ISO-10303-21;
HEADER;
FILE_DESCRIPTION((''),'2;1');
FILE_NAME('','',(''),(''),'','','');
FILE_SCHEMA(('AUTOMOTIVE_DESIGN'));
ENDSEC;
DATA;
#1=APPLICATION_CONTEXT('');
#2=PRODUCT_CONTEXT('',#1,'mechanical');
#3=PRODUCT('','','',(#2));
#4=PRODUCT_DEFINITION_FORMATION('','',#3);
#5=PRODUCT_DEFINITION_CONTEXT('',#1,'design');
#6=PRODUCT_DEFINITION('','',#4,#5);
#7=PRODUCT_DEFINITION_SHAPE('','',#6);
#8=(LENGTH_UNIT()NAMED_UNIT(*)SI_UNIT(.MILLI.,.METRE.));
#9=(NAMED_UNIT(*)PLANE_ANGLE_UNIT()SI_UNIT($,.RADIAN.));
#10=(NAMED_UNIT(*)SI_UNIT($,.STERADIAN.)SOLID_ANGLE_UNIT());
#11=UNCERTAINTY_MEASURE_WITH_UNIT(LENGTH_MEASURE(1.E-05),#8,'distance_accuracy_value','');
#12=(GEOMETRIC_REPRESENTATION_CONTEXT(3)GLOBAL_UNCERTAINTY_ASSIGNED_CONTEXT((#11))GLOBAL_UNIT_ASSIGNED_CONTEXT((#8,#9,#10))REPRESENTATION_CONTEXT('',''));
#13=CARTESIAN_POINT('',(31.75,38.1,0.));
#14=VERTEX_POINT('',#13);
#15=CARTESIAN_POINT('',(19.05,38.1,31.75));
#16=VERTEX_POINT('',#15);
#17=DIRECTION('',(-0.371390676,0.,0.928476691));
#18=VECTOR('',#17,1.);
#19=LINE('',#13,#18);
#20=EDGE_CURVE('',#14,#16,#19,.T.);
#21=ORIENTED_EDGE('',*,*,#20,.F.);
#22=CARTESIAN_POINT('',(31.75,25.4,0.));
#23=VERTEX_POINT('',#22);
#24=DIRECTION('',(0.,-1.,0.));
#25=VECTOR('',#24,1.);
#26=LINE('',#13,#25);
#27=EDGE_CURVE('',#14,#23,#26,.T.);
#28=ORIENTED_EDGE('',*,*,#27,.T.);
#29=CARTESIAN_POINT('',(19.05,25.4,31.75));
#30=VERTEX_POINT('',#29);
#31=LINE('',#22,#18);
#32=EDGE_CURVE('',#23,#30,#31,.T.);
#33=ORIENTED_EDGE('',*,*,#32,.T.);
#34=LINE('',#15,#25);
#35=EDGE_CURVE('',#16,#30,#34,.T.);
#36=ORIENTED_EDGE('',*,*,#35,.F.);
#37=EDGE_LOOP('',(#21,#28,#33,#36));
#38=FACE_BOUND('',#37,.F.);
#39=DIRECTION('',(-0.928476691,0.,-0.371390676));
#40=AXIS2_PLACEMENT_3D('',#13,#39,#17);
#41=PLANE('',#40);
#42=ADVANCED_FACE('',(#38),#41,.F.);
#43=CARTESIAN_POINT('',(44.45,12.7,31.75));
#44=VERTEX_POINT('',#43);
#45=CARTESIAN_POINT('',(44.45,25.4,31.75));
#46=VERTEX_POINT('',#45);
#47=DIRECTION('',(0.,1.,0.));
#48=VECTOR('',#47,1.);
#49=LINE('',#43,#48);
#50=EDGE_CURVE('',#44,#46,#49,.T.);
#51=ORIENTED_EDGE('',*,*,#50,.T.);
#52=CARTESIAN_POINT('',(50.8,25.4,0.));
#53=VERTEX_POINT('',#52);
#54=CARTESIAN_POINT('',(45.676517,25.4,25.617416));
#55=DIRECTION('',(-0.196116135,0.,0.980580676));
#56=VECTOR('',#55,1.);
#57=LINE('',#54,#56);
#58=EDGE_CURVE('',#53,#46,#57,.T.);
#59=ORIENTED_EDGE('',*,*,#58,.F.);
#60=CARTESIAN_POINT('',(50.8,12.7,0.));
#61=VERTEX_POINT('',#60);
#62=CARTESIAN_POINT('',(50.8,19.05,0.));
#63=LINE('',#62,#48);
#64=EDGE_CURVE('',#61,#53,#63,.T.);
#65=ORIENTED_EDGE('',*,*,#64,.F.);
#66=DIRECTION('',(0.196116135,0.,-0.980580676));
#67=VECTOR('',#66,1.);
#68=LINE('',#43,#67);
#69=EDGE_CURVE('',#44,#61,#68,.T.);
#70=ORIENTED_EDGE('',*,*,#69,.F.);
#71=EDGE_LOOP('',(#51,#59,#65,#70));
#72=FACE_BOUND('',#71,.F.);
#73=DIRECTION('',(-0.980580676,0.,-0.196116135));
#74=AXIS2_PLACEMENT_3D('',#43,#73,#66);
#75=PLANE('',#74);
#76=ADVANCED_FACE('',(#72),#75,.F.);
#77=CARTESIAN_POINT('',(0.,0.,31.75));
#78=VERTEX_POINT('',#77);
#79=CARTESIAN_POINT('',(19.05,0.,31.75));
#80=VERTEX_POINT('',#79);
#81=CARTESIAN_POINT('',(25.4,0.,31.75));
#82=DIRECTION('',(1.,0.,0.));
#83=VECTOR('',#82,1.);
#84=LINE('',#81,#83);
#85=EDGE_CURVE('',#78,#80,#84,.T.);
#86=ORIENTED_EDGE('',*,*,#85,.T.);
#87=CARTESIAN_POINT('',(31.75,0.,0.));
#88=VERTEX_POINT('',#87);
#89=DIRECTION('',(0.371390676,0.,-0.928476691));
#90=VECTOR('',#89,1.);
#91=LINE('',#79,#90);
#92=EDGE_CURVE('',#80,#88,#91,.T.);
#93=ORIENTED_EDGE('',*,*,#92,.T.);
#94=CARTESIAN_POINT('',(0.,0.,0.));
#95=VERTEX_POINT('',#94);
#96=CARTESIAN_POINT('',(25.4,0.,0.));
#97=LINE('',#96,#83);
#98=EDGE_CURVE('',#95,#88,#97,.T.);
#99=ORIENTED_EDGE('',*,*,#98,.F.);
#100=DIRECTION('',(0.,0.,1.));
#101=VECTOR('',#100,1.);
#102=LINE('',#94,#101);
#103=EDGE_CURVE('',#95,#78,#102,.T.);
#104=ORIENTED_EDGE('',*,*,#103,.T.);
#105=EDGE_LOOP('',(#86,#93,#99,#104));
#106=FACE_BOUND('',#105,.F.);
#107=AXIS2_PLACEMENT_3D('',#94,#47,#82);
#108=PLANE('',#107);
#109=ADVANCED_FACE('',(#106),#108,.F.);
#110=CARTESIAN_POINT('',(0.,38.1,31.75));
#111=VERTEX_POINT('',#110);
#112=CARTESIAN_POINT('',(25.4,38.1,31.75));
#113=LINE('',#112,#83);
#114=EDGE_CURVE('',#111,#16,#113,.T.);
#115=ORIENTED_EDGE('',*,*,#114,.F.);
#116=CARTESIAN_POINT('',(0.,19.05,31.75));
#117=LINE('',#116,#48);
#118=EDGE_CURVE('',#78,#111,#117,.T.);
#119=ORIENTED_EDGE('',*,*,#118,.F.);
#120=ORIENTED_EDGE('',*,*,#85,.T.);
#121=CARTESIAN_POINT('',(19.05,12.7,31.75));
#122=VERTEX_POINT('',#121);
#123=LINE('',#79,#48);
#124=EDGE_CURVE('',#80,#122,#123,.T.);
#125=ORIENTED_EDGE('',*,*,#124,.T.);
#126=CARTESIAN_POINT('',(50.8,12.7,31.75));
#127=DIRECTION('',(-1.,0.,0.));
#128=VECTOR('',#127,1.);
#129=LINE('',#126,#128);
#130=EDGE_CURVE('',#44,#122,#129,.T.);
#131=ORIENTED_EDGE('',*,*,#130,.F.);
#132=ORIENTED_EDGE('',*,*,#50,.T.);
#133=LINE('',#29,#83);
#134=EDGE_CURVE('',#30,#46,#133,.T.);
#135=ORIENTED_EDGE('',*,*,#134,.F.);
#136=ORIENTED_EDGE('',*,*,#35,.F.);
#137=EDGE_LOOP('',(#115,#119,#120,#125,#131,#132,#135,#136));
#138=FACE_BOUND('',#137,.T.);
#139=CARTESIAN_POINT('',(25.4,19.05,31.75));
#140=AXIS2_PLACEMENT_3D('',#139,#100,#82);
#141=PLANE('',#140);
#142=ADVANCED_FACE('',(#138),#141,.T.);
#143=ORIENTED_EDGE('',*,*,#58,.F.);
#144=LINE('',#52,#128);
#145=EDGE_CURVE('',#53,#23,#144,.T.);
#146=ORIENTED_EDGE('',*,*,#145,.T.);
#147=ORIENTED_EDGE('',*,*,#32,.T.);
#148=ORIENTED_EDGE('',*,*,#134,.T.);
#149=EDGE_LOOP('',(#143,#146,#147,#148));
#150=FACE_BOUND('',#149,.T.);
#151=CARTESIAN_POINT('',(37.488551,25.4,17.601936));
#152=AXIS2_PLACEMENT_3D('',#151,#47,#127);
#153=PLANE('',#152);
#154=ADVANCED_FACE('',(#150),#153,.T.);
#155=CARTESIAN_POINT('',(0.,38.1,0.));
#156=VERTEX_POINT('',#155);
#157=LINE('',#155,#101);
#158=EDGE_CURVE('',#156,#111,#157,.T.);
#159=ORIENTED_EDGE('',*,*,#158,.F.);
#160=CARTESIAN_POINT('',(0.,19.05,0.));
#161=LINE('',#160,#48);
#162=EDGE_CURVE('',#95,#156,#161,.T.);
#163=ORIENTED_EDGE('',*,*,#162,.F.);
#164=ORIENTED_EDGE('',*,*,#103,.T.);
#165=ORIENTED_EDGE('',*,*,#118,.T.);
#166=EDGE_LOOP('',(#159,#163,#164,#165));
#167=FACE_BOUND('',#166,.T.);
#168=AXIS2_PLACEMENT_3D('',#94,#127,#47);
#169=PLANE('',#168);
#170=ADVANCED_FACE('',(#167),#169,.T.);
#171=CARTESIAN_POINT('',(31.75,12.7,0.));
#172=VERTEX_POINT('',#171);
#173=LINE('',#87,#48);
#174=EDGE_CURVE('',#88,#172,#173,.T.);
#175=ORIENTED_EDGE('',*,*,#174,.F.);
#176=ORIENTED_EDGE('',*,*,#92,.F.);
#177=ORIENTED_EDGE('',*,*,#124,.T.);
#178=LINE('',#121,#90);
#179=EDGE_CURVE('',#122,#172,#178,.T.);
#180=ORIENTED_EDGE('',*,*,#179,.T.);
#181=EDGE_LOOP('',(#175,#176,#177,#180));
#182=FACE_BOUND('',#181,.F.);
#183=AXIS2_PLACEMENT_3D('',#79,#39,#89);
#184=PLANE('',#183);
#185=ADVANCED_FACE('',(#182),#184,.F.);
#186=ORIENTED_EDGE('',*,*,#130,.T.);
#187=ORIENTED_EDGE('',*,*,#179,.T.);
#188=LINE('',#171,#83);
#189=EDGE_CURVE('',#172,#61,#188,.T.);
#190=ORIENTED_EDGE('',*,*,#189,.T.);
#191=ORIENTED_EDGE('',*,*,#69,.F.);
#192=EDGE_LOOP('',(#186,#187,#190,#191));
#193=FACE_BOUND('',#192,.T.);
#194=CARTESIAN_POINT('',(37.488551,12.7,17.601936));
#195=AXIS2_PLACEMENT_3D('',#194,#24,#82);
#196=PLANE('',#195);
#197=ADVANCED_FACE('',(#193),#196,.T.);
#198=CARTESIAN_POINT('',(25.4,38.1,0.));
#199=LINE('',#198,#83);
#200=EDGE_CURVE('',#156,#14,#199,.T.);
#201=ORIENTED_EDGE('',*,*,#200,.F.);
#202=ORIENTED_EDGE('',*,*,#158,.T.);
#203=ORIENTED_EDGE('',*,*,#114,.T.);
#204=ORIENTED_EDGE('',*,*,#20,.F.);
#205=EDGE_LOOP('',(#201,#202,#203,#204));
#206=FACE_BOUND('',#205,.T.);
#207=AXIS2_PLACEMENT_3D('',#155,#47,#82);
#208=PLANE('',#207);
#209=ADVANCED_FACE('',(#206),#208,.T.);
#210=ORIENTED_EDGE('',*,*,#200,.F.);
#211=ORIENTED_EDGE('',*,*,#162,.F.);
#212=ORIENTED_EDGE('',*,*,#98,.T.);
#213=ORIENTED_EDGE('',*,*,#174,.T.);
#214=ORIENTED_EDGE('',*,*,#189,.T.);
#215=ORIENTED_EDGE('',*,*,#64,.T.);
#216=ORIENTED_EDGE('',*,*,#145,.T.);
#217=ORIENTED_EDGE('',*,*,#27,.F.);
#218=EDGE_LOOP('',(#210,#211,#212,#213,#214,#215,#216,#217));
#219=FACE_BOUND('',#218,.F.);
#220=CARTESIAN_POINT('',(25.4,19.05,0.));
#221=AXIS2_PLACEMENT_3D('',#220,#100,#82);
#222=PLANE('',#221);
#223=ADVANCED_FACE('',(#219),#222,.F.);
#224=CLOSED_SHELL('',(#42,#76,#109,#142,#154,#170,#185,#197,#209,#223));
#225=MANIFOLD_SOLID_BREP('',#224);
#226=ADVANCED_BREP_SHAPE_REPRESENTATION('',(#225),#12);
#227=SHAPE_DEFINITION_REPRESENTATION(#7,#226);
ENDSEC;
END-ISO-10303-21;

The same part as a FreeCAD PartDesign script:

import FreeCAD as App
import Part
import Sketcher

V = App.Vector
Q = App.Units.Quantity


def add_polygon(sketch, points):
    """Adds a closed chain of lines whose ends are joined by coincident constraints."""
    first, n = sketch.GeometryCount, len(points)
    for a, b in zip(points, points[1:] + points[:1]):
        sketch.addGeometry(Part.LineSegment(App.Vector(*a, 0), App.Vector(*b, 0)), False)
    for i in range(n):
        sketch.addConstraint(Sketcher.Constraint("Coincident", first + i, 2, first + (i + 1) % n, 1))

doc = App.newDocument("Part")
body = doc.addObject("PartDesign::Body", "Body")

# Sketch on XY plane
sketch1 = body.newObject("Sketcher::SketchObject", "Sketch")
sketch1.AttachmentSupport = (doc.getObject("XY_Plane"), [""])
sketch1.MapMode = "FlatFace"
add_polygon(sketch1, [(0, 38.1), (0, 0), (50.8, 0), (50.8, 38.1)])  # lines 0-3
sketch1.addConstraint(Sketcher.Constraint("Vertical", 0))
sketch1.addConstraint(Sketcher.Constraint("Horizontal", 1))
sketch1.addConstraint(Sketcher.Constraint("Vertical", 2))
sketch1.addConstraint(Sketcher.Constraint("Horizontal", 3))
sketch1.addConstraint(Sketcher.Constraint("Coincident", 0, 2, -1, 1))
sketch1.addConstraint(Sketcher.Constraint("DistanceX", 1, 1, 1, 2, Q("2 in")))
sketch1.addConstraint(Sketcher.Constraint("DistanceY", 0, 2, 0, 1, Q("1.5 in")))
pad1 = body.newObject("PartDesign::Pad", "Pad")
pad1.Profile = sketch1
pad1.Length = Q("1.25 in")

# Sketch on XZ plane
sketch2 = body.newObject("Sketcher::SketchObject", "Sketch001")
sketch2.AttachmentSupport = (doc.getObject("XZ_Plane"), [""])
sketch2.MapMode = "FlatFace"
add_polygon(sketch2, [(19.05, 31.75), (31.75, 0), (50.8, 0), (50.8, 31.75)])  # lines 0-3
sketch2.addConstraint(Sketcher.Constraint("Horizontal", 1))
sketch2.addConstraint(Sketcher.Constraint("Vertical", 2))
sketch2.addConstraint(Sketcher.Constraint("Horizontal", 3))
sketch2.addConstraint(Sketcher.Constraint("PointOnObject", 0, 2, -1))
sketch2.addConstraint(Sketcher.Constraint("Equal", 3, 2))
sketch2.addConstraint(Sketcher.Constraint("DistanceX", -1, 1, 1, 2, Q("2 in")))
sketch2.addConstraint(Sketcher.Constraint("DistanceX", 1, 1, 1, 2, Q("0.75 in")))
sketch2.addConstraint(Sketcher.Constraint("DistanceX", 3, 2, 3, 1, Q("1.25 in")))
pocket1 = body.newObject("PartDesign::Pocket", "Pocket")
pocket1.Profile = sketch2
pocket1.Length = Q("0.5 in")

# Sketch on XZ plane
sketch3 = body.newObject("Sketcher::SketchObject", "Sketch002")
sketch3.AttachmentSupport = (doc.getObject("XZ_Plane"), [""])
sketch3.MapMode = "FlatFace"
sketch3.AttachmentOffset = App.Placement(V(0, 0, -1.5 * 25.4), App.Rotation())
add_polygon(sketch3, [(50.8, 0), (31.75, 0), (19.05, 31.75), (50.8, 31.75)])  # lines 0-3
sketch3.addConstraint(Sketcher.Constraint("Horizontal", 0))
sketch3.addConstraint(Sketcher.Constraint("Horizontal", 2))
sketch3.addConstraint(Sketcher.Constraint("Vertical", 3))
sketch3.addConstraint(Sketcher.Constraint("PointOnObject", 0, 2, -1))
sketch3.addConstraint(Sketcher.Constraint("Equal", 2, 3))
sketch3.addConstraint(Sketcher.Constraint("DistanceX", -1, 1, 2, 2, Q("2 in")))
sketch3.addConstraint(Sketcher.Constraint("DistanceX", 0, 2, 0, 1, Q("0.75 in")))
sketch3.addConstraint(Sketcher.Constraint("DistanceX", 2, 1, 2, 2, Q("1.25 in")))
pocket2 = body.newObject("PartDesign::Pocket", "Pocket001")
pocket2.Profile = sketch3
pocket2.Length = Q("0.5 in")
pocket2.Reversed = True

# Sketch on XZ plane
sketch4 = body.newObject("Sketcher::SketchObject", "Sketch003")
sketch4.AttachmentSupport = (doc.getObject("XZ_Plane"), [""])
sketch4.MapMode = "FlatFace"
sketch4.AttachmentOffset = App.Placement(V(0, 0, -0.5 * 25.4), App.Rotation())
add_polygon(sketch4, [(44.45, 31.75), (50.8, 0), (50.8, 31.75)])  # lines 0-2
sketch4.addConstraint(Sketcher.Constraint("Vertical", 1))
sketch4.addConstraint(Sketcher.Constraint("Horizontal", 2))
sketch4.addConstraint(Sketcher.Constraint("PointOnObject", 0, 2, -1))
sketch4.addConstraint(Sketcher.Constraint("DistanceX", -1, 1, 0, 2, Q("2 in")))
sketch4.addConstraint(Sketcher.Constraint("DistanceX", 2, 2, 2, 1, Q("0.25 in")))
sketch4.addConstraint(Sketcher.Constraint("DistanceY", 1, 1, 1, 2, Q("1.25 in")))
pocket3 = body.newObject("PartDesign::Pocket", "Pocket002")
pocket3.Profile = sketch4
pocket3.Length = Q("1 in")

doc.recompute()
